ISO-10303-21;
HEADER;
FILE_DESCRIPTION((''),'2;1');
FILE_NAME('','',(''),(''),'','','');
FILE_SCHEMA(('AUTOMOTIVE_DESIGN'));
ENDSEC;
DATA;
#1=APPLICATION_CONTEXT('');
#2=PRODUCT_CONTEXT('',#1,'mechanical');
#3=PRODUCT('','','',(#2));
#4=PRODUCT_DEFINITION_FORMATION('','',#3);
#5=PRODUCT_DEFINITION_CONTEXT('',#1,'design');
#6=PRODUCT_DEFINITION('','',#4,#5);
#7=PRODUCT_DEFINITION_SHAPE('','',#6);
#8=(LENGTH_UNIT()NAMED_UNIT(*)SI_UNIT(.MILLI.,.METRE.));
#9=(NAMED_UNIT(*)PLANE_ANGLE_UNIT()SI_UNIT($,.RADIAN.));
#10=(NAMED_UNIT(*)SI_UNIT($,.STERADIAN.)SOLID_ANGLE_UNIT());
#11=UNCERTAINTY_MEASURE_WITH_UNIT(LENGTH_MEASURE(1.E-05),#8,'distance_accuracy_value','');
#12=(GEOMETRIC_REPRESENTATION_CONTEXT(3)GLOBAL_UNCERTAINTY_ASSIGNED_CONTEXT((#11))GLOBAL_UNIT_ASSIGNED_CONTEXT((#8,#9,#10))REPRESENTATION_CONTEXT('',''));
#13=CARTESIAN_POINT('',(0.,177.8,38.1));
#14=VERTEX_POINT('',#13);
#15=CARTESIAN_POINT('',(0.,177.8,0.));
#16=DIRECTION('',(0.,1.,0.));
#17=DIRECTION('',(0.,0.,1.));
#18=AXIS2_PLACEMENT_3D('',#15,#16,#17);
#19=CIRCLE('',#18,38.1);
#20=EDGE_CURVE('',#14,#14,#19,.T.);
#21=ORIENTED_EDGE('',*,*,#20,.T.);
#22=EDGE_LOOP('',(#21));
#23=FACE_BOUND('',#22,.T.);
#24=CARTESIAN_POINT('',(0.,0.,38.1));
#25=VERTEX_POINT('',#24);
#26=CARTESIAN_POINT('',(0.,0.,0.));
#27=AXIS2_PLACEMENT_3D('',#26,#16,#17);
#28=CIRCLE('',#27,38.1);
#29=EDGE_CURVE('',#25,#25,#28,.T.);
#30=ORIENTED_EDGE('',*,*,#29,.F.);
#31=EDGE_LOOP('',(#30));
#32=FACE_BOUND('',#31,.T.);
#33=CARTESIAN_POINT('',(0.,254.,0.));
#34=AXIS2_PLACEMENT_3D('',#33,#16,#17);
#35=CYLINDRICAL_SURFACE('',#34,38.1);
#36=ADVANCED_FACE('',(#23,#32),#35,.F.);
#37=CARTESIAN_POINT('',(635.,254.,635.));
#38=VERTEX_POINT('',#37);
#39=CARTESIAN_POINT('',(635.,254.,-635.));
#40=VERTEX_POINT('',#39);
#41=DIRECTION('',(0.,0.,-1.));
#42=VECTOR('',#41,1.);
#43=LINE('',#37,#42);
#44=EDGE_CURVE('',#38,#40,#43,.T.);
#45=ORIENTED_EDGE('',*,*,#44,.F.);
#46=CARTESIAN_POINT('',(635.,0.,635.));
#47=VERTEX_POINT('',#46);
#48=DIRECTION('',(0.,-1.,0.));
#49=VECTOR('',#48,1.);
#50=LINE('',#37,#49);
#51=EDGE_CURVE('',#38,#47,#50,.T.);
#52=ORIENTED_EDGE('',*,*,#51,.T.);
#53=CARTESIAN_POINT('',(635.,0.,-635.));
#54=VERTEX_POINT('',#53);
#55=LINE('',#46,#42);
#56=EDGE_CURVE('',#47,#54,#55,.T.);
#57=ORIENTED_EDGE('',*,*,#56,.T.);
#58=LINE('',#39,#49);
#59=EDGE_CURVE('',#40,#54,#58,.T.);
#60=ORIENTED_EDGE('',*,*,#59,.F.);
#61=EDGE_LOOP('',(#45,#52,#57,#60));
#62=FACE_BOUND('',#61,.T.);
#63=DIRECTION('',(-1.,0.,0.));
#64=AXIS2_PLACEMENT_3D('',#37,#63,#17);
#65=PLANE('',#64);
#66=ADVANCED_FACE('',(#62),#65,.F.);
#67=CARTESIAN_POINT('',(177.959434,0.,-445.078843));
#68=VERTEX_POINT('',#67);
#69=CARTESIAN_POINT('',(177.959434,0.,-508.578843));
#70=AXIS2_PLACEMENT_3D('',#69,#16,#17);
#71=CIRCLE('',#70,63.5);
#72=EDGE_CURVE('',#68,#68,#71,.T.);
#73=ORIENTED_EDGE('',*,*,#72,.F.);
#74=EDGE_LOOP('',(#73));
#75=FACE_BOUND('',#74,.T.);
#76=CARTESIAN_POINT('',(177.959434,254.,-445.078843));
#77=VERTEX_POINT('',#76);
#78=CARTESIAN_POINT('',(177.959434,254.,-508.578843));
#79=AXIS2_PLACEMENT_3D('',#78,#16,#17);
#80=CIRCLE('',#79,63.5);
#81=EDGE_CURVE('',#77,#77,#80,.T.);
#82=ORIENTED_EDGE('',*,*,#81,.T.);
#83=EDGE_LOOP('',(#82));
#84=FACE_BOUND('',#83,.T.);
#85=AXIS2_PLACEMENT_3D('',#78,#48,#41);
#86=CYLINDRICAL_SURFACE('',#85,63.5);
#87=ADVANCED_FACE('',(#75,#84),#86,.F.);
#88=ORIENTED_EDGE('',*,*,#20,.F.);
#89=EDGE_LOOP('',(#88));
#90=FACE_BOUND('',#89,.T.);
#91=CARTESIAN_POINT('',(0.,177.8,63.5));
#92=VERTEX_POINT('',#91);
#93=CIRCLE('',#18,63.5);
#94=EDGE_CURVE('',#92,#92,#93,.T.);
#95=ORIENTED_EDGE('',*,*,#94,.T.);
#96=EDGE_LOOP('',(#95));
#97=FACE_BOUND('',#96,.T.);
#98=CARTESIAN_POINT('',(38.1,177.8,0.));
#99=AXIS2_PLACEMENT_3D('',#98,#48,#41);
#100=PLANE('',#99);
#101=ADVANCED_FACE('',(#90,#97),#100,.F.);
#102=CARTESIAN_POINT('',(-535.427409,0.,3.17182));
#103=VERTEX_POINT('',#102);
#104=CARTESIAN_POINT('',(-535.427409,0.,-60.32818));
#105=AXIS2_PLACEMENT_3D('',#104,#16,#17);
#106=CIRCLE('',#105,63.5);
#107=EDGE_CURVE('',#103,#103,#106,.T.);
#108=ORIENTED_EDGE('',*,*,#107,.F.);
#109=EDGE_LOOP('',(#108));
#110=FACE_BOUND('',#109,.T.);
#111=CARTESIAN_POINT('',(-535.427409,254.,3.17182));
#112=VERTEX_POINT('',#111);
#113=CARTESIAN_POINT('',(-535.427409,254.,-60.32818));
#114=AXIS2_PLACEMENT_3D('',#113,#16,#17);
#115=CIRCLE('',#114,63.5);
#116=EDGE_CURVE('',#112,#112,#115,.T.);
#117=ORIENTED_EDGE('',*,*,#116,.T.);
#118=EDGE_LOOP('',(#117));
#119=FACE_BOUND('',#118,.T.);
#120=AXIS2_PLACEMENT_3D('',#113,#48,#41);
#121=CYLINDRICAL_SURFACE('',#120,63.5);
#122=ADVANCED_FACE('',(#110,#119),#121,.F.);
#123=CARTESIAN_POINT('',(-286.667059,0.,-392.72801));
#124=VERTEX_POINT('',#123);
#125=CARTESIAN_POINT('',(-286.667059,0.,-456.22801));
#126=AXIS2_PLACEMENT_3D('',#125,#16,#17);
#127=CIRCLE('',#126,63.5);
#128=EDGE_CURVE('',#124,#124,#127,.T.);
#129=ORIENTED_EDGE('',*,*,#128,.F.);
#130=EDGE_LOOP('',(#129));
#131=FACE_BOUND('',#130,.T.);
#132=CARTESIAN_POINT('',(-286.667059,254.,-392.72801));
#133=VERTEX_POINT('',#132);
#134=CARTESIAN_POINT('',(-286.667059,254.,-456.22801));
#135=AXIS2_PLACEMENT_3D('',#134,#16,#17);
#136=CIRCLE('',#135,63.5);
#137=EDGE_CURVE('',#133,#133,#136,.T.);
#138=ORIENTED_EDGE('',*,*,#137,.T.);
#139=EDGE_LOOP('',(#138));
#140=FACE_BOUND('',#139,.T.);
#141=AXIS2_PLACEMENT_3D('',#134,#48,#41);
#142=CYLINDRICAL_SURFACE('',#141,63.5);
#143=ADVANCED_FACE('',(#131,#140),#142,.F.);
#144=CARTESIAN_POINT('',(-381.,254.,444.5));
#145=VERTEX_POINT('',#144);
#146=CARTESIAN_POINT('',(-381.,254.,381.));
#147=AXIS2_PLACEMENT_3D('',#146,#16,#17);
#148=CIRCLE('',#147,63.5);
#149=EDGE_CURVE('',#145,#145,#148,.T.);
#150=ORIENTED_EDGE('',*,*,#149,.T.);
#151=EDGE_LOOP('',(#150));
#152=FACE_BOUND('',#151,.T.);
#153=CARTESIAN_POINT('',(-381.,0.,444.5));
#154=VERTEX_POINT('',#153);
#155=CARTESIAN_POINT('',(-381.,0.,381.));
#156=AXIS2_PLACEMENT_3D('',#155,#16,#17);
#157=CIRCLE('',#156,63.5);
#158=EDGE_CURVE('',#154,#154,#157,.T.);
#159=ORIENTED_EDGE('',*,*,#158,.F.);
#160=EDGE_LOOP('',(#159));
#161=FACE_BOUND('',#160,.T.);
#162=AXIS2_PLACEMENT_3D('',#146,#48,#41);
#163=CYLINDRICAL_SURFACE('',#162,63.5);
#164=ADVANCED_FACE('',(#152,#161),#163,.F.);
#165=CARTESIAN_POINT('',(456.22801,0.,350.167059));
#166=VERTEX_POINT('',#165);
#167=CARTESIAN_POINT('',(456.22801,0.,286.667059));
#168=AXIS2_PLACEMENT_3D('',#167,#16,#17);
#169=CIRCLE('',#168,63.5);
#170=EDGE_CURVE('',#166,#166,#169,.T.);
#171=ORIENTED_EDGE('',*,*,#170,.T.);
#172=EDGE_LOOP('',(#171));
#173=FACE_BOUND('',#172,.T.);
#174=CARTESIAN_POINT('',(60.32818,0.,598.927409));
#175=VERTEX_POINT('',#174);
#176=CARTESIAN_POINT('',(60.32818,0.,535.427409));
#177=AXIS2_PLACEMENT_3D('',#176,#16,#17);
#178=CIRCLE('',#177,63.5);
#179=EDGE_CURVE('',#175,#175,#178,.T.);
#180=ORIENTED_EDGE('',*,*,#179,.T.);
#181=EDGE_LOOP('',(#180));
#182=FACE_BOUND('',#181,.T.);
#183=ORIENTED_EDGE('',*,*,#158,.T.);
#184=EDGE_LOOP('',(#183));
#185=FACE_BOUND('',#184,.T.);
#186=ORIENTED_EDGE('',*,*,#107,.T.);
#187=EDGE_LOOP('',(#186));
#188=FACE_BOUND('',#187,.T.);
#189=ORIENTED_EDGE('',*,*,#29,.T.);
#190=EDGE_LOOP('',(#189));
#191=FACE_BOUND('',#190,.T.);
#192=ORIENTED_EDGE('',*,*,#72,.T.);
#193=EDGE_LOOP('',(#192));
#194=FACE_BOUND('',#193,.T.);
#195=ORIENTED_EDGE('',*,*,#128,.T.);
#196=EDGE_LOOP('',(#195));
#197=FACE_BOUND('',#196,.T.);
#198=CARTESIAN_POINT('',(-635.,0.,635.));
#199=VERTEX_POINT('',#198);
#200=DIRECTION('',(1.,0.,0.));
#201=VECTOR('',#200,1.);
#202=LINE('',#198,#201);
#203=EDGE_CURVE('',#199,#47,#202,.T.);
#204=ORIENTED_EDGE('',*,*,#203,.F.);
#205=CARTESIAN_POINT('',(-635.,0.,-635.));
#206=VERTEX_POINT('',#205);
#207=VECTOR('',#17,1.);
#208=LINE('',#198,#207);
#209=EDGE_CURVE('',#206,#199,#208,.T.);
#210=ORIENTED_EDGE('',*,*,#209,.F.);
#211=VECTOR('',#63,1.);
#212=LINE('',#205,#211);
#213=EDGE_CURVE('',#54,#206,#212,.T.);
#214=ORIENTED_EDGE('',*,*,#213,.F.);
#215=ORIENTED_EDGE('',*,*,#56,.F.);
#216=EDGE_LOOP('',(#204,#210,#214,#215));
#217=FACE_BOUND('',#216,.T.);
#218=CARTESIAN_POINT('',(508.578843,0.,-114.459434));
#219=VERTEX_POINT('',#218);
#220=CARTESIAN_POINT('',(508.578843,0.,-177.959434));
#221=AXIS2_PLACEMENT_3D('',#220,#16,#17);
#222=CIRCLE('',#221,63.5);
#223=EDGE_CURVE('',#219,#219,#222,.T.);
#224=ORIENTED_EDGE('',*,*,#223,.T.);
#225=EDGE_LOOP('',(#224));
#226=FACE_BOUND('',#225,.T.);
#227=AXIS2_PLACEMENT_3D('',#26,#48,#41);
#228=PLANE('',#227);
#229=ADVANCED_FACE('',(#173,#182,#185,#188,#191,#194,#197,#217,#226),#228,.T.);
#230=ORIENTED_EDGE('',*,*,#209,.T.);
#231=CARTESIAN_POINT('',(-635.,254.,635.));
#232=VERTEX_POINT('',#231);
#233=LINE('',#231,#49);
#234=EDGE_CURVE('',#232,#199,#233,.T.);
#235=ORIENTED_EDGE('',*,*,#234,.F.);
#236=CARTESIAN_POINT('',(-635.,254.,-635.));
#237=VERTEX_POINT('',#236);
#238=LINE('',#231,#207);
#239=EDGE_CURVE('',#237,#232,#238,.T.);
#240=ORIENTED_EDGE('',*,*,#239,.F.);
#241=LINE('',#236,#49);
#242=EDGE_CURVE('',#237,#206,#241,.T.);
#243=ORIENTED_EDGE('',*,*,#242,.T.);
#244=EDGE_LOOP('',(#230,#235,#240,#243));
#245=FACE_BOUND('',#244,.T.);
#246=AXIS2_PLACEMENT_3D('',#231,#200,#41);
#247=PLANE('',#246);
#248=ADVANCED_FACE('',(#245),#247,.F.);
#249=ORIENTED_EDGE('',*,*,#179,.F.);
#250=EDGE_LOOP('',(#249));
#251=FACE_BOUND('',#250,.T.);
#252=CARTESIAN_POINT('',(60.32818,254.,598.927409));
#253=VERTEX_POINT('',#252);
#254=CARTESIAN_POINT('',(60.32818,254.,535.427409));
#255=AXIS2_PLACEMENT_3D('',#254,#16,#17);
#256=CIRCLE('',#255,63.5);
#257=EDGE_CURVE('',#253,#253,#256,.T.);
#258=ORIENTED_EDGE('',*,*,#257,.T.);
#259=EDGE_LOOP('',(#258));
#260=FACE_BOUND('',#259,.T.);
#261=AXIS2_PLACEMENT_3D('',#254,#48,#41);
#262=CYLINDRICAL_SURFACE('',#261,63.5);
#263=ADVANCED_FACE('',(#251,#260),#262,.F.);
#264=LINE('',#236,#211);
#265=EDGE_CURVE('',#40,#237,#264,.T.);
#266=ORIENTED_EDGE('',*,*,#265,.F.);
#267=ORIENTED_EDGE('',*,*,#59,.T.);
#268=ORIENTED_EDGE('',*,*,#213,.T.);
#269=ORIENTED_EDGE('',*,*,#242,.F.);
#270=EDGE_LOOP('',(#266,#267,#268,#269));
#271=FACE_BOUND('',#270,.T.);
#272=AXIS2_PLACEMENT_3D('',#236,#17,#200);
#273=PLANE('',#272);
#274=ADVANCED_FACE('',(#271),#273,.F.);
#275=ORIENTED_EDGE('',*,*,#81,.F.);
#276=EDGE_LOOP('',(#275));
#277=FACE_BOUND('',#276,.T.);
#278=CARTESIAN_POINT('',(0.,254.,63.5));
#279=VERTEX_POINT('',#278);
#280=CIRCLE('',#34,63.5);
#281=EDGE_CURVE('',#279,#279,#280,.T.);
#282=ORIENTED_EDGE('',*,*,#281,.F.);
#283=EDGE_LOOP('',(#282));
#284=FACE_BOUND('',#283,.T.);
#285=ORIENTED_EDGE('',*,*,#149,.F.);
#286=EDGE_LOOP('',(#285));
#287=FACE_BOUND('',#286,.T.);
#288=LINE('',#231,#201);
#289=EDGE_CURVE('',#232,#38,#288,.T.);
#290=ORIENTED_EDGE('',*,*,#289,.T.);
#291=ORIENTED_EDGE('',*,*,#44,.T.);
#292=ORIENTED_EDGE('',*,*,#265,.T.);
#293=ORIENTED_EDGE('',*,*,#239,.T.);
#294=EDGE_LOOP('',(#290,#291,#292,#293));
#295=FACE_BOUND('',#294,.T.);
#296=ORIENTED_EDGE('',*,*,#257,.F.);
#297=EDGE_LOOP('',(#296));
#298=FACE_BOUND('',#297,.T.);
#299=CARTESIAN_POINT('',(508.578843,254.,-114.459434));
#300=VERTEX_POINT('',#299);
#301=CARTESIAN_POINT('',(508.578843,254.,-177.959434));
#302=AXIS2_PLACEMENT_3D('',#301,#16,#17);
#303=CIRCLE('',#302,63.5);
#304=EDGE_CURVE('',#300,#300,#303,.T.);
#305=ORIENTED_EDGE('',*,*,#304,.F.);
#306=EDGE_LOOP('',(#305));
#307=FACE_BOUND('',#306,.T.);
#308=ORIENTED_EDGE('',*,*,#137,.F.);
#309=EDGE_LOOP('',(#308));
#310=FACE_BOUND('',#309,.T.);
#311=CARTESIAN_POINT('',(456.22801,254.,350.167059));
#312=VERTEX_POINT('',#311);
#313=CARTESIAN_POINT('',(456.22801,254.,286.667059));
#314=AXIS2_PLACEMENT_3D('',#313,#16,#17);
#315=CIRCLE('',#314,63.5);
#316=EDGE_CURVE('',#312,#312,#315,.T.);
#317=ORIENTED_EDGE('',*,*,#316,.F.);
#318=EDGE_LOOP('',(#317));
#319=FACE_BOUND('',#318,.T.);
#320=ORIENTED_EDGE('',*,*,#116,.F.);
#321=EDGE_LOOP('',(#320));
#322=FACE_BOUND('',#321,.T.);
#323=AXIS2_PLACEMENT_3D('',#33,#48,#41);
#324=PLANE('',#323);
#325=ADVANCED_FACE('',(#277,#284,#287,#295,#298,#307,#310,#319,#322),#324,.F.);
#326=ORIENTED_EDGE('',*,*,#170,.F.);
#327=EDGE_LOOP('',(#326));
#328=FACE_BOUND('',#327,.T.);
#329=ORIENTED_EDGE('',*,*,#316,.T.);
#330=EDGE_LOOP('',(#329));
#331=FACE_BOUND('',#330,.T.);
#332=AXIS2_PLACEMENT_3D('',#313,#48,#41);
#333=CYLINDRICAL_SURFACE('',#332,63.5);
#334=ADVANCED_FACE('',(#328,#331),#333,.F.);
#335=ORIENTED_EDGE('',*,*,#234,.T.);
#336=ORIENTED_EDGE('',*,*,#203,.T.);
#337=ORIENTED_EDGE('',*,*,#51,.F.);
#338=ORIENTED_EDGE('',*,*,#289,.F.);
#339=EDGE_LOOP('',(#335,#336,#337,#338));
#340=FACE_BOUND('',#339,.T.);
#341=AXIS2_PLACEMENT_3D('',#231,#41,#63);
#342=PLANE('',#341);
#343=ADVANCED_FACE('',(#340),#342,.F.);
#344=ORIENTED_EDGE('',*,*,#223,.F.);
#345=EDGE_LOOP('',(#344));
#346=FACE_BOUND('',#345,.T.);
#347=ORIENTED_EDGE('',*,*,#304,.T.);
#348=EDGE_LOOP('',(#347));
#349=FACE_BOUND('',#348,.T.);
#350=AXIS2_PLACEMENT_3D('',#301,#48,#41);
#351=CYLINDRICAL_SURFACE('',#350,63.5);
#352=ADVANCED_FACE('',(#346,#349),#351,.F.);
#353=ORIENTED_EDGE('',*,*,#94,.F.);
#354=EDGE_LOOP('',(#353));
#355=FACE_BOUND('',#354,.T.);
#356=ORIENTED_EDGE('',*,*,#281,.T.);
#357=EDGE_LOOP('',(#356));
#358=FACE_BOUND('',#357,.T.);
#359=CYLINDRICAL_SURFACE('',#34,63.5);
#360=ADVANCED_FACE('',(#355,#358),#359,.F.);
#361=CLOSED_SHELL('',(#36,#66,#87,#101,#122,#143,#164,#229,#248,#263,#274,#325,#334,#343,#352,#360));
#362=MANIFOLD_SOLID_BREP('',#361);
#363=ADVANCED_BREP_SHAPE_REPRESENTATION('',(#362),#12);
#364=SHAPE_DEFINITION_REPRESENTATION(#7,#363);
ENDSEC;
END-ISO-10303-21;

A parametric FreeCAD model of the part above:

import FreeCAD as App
import Part
import Sketcher
from FreeCAD import Vector
Q = App.Units.Quantity

doc = App.newDocument("Part")
body = doc.addObject("PartDesign::Body", "Body")

# Sketch on XZ plane
sketch1 = doc.addObject("Sketcher::SketchObject", "Sketch")
body.addObject(sketch1)
sketch1.AttachmentSupport = (doc.XZ_Plane, [""])
sketch1.MapMode = "FlatFace"
sketch1.addGeometry([
    Part.LineSegment(Vector(-635, -635, 0), Vector(-635, 635, 0)),  # 0
    Part.LineSegment(Vector(-635, 635, 0), Vector(635, 635, 0)),  # 1
    Part.LineSegment(Vector(635, 635, 0), Vector(635, -635, 0)),  # 2
    Part.LineSegment(Vector(635, -635, 0), Vector(-635, -635, 0)),  # 3
    Part.Circle(Vector(-381, 381, 0), Vector(0, 0, 1), 64),  # 4
    Part.Circle(Vector(60, 535, 0), Vector(0, 0, 1), 64),  # 5
    Part.Circle(Vector(456, 287, 0), Vector(0, 0, 1), 64),  # 6
    Part.Circle(Vector(-535, -60, 0), Vector(0, 0, 1), 64),  # 7
    Part.Circle(Vector(-287, -456, 0), Vector(0, 0, 1), 64),  # 8
    Part.Circle(Vector(509, -178, 0), Vector(0, 0, 1), 64),  # 9
    Part.Circle(Vector(178, -509, 0), Vector(0, 0, 1), 64),  # 10
], False)
sketch1.addConstraint([
    Sketcher.Constraint("Coincident", 0, 2, 1, 1),
    Sketcher.Constraint("Coincident", 1, 2, 2, 1),
    Sketcher.Constraint("Coincident", 2, 2, 3, 1),
    Sketcher.Constraint("Coincident", 3, 2, 0, 1),
    Sketcher.Constraint("Vertical", 0),
    Sketcher.Constraint("Horizontal", 1),
    Sketcher.Constraint("Vertical", 2),
    Sketcher.Constraint("Horizontal", 3),
    Sketcher.Constraint("Equal", 4, 5),
    Sketcher.Constraint("Equal", 5, 6),
    Sketcher.Constraint("Equal", 6, 7),
    Sketcher.Constraint("Equal", 7, 8),
    Sketcher.Constraint("Equal", 8, 9),
    Sketcher.Constraint("Equal", 9, 10),
    Sketcher.Constraint("Symmetric", 0, 2, 2, 2, -1, 1),
    Sketcher.Constraint("Equal", 3, 0),
    Sketcher.Constraint("Diameter", 4, Q("5 in")),
    Sketcher.Constraint("DistanceX", 1, 1, 1, 2, Q("50 in")),
    Sketcher.Constraint("DistanceX", 4, 3, -1, 1, Q("15 in")),
    Sketcher.Constraint("DistanceY", -1, 1, 4, 3, Q("15 in")),
    Sketcher.Constraint("DistanceX", 8, 3, 9, 3, 795.245902),
    Sketcher.Constraint("DistanceY", 10, 3, 6, 3, 795.245902),
    Sketcher.Constraint("DistanceX", -1, 1, 5, 3, 60.32818),
    Sketcher.Constraint("DistanceY", -1, 1, 5, 3, 535.427409),
    Sketcher.Constraint("DistanceX", -1, 1, 6, 3, 456.22801),
    Sketcher.Constraint("DistanceY", -1, 1, 6, 3, 286.667059),
    Sketcher.Constraint("DistanceX", 7, 3, -1, 1, 535.427409),
    Sketcher.Constraint("DistanceY", 7, 3, -1, 1, 60.32818),
    Sketcher.Constraint("DistanceX", 8, 3, -1, 1, 286.667059),
    Sketcher.Constraint("DistanceY", 8, 3, -1, 1, 456.22801),
    Sketcher.Constraint("DistanceX", 10, 3, 9, 3, 330.619409),
    Sketcher.Constraint("DistanceY", 10, 3, 9, 3, 330.619409),
])
pad1 = doc.addObject("PartDesign::Pad", "Pad")
body.addObject(pad1)
pad1.Profile = sketch1
pad1.Length = Q("10 in")
pad1.Reversed = True

# Sketch on XZ plane
sketch2 = doc.addObject("Sketcher::SketchObject", "Sketch001")
body.addObject(sketch2)
sketch2.AttachmentSupport = (doc.XZ_Plane, [""])
sketch2.MapMode = "FlatFace"
sketch2.AttachmentOffset = App.Placement(Vector(0, 0, -10 * 25.4), App.Rotation())
sketch2.addGeometry(Part.Circle(Vector(0, 0, 0), Vector(0, 0, 1), 38), False)
sketch2.addConstraint([
    Sketcher.Constraint("Coincident", 0, 3, -1, 1),
    Sketcher.Constraint("Diameter", 0, Q("3 in")),
])
doc.recompute()
hole = doc.addObject("PartDesign::Hole", "Hole")
body.addObject(hole)
hole.Profile = sketch2
hole.ThreadType = "None"
hole.Diameter = Q("3 in")
hole.DepthType = "ThroughAll"
hole.HoleCutType = "Counterbore"
hole.HoleCutDiameter = Q("5 in")
hole.HoleCutDepth = Q("3 in")
hole.Reversed = True

doc.recompute()
